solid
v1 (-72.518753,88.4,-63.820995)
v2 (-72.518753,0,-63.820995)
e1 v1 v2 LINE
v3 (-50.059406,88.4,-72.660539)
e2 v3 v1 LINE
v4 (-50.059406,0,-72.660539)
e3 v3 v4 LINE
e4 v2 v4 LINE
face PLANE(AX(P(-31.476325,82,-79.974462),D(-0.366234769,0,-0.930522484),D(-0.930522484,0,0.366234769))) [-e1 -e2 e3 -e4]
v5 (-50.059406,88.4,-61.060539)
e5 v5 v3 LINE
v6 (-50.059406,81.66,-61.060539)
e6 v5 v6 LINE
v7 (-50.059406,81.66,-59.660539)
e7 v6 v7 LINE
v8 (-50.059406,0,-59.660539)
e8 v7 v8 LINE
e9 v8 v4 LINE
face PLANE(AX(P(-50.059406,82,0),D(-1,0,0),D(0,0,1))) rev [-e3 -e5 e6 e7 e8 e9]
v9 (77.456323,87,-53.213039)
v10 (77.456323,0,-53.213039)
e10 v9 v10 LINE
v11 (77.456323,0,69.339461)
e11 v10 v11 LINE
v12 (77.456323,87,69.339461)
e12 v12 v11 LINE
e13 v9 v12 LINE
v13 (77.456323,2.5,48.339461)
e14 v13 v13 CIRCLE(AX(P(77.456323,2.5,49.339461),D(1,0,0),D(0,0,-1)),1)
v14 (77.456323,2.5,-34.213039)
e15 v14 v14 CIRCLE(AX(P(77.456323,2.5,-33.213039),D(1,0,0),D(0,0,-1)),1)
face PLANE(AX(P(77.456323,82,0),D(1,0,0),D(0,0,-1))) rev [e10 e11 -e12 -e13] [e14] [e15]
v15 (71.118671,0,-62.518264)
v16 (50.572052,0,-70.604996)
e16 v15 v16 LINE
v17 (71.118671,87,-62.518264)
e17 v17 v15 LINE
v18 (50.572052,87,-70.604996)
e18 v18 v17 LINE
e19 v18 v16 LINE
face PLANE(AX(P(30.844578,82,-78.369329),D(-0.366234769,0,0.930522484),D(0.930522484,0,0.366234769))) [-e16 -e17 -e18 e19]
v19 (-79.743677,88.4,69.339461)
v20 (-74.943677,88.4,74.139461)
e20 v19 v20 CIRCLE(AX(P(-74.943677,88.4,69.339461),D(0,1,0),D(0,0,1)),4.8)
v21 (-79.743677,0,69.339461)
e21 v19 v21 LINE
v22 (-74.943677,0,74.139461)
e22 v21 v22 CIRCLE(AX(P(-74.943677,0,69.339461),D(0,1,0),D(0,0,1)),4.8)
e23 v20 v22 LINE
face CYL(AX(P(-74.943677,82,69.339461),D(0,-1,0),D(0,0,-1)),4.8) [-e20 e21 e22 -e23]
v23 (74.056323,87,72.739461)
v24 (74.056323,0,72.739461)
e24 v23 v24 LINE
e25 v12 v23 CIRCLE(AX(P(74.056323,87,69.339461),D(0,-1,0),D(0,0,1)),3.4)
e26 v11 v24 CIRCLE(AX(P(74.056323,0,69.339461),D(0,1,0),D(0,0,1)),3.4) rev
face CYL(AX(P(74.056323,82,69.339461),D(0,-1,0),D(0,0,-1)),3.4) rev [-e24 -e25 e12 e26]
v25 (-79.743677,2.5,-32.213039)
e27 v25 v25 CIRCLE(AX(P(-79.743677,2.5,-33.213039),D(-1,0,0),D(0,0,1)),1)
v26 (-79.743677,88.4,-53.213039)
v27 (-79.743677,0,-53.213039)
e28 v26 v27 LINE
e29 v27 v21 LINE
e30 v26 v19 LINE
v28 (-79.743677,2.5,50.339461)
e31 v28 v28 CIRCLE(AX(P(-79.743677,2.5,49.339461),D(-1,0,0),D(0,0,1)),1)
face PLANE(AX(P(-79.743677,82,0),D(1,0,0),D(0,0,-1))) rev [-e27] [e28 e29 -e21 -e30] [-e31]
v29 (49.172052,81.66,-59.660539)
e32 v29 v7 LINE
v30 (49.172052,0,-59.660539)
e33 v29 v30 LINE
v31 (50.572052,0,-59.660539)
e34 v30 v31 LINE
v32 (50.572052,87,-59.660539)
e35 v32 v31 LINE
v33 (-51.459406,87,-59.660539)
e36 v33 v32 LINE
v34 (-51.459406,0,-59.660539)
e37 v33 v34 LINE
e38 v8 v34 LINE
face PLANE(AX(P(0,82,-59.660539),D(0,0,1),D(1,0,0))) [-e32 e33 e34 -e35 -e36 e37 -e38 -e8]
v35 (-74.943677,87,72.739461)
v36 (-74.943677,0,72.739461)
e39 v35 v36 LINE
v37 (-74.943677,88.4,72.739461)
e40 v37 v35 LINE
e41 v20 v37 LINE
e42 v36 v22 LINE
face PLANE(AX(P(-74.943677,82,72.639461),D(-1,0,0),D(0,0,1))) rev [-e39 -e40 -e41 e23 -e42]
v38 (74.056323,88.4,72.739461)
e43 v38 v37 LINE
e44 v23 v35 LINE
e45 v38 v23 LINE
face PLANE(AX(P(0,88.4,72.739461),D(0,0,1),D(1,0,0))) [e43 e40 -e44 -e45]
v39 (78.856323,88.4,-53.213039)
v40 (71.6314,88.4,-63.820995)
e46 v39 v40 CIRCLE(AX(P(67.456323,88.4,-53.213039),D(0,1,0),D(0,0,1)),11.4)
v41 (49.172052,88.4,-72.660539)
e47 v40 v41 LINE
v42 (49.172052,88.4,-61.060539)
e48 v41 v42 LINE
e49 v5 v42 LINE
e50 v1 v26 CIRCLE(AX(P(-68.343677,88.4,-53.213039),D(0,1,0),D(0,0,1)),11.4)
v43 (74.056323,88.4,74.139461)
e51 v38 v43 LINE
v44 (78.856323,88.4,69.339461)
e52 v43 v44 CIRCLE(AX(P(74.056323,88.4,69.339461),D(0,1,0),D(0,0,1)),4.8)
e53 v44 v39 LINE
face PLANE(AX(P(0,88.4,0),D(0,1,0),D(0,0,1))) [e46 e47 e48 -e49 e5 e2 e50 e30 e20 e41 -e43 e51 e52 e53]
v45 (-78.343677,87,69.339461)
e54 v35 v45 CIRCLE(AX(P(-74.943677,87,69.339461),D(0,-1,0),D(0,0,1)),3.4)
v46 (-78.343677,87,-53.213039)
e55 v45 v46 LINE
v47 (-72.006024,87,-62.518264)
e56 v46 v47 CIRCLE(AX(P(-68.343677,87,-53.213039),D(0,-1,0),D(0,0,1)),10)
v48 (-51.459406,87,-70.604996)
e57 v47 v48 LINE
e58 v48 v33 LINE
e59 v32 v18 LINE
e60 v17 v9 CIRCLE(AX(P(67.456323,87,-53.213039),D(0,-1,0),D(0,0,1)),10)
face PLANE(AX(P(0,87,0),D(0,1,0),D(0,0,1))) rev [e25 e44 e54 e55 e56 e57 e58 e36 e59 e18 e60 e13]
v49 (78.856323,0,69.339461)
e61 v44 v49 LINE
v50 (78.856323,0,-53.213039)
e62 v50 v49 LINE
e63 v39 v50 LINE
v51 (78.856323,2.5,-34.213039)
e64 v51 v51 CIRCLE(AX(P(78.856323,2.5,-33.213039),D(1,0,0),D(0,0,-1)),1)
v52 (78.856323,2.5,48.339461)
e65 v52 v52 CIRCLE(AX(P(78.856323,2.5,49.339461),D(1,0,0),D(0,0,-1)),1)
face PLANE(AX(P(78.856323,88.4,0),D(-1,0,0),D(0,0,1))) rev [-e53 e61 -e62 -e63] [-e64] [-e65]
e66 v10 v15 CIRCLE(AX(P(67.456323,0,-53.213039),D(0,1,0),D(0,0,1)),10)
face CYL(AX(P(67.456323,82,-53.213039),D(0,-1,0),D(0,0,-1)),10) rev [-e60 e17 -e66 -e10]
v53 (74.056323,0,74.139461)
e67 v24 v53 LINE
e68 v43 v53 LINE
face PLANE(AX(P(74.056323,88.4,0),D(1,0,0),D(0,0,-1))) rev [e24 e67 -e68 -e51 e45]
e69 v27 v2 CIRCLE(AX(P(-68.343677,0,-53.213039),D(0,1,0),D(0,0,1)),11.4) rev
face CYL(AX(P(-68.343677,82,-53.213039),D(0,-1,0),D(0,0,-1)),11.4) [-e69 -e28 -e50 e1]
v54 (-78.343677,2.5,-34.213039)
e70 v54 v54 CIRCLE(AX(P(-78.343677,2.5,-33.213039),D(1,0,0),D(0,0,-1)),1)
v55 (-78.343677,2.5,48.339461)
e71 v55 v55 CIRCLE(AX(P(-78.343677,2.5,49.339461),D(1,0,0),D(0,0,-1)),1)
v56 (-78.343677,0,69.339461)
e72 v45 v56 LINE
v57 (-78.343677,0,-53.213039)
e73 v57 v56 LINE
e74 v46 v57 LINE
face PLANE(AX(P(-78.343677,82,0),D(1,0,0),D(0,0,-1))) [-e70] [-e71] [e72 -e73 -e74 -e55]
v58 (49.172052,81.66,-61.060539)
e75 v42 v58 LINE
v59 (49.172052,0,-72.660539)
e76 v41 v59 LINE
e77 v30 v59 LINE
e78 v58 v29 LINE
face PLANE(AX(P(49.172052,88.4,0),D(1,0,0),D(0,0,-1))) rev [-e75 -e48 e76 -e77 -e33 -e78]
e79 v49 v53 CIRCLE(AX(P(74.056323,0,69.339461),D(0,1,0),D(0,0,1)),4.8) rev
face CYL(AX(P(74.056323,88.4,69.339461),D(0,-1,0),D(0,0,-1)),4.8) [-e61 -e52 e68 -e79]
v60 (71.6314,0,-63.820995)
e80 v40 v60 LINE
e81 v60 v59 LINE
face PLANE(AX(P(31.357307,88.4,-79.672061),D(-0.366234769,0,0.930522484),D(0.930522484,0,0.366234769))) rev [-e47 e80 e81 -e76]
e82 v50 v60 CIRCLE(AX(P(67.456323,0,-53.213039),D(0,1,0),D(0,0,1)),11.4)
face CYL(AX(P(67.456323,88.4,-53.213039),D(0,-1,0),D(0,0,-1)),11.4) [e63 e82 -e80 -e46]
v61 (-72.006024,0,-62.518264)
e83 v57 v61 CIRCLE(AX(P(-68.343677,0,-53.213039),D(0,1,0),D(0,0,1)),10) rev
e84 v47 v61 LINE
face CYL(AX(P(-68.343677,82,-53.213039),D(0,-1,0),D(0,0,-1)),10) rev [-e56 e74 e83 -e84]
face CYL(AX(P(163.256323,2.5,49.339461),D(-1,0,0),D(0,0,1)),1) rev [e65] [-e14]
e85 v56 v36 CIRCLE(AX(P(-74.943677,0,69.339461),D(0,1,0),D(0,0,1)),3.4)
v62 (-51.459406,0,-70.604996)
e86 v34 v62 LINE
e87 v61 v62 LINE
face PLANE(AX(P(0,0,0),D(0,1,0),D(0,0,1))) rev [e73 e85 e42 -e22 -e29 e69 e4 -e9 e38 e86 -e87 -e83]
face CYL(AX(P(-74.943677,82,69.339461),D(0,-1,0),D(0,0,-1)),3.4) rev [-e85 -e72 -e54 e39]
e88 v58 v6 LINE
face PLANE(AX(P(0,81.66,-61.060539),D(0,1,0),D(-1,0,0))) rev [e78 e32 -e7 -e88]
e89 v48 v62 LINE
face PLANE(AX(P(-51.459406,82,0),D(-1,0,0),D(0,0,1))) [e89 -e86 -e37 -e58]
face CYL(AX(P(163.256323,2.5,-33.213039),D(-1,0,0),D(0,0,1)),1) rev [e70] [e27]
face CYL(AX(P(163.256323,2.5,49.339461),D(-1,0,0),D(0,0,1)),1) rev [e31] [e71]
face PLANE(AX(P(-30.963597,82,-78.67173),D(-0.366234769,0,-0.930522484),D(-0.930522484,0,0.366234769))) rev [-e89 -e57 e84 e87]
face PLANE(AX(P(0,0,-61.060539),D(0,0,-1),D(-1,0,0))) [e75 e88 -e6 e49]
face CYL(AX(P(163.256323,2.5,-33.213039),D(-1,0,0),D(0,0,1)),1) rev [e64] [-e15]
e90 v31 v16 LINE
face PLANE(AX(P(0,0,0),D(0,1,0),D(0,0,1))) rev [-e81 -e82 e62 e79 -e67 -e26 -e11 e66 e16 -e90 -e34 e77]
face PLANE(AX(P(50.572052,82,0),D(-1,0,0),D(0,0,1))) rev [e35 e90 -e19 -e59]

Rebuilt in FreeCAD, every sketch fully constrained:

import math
import FreeCAD as App
import Part
import Sketcher
from FreeCAD import Vector


def add_polygon(sketch, points):
    """Adds a closed chain of lines whose ends are joined by coincident constraints."""
    first, n = sketch.GeometryCount, len(points)
    for a, b in zip(points, points[1:] + points[:1]):
        sketch.addGeometry(Part.LineSegment(App.Vector(*a, 0), App.Vector(*b, 0)), False)
    for i in range(n):
        sketch.addConstraint(Sketcher.Constraint("Coincident", first + i, 2, first + (i + 1) % n, 1))

doc = App.newDocument("Part")
params = doc.addObject("Spreadsheet::Sheet", "Params")
for row, (alias, value) in enumerate([
    ("sketch1_radius", "10 mm"),
    ("sketch1_radius2", "4.8 mm"),
    ("sketch1_radius3", "11.4 mm"),
    ("sketch1_width", "149 mm"),
    ("sketch1_height", "13 mm"),
    ("pad1_length", "82 mm"),
    ("sketch2_radius", "10 mm"),
    ("sketch2_radius2", "3.4 mm"),
    ("sketch2_width", "149 mm"),
    ("pad2_length", "1.5 mm"),
    ("sketch3_width", "149 mm"),
    ("sketch3_height", "82 mm"),
    ("pocket1_length", "1.5 mm"),
    ("sketch4_height", "0.2 mm"),
    ("pocket2_length", "18 mm"),
    ("sketch5_diameter", "2 mm"),
    ("pocket3_length", "243 mm"),
    ("sketch6_radius", "10 mm"),
    ("sketch6_radius2", "3.4 mm"),
    ("sketch6_width", "149 mm"),
    ("sketch6_width2", "1.4 mm"),
    ("sketch6_height", "0.2 mm"),
    ("pocket4_length", "16.4 mm"),
    ("sketch7_radius", "10 mm"),
    ("sketch7_radius2", "4.8 mm"),
    ("sketch7_radius3", "11.4 mm"),
    ("sketch7_height", "13 mm"),
    ("pad3_length", "5 mm"),
    ("sketch8_radius", "4.8 mm"),
    ("sketch8_radius2", "11.4 mm"),
    ("sketch8_width", "149 mm"),
    ("sketch8_height", "13 mm"),
    ("sketch8_height2", "1.4 mm"),
    ("pad4_length", "1.4 mm"),
    ("sketch9_height", "6.74 mm"),
    ("pad5_length", "1.4 mm"),
], start=1):
    params.set(f"A{row}", alias)
    params.set(f"B{row}", "=" + value)
    params.setAlias(f"B{row}", alias)

body = doc.addObject("PartDesign::Body", "Body")
body.AllowCompound = True

# Sketch on XZ plane
sketch1 = body.newObject("Sketcher::SketchObject", "Sketch")
sketch1.AttachmentSupport = (doc.getObject("XZ_Plane"), [""])
sketch1.MapMode = "FlatFace"
sketch1.addGeometry([
    Part.ArcOfCircle(Part.Circle(Vector(74.056323, 69.339461, 0), Vector(0, 0, 1), 4.8), math.radians(0), math.radians(90)),  # 0
    Part.LineSegment(Vector(78.856323, 69.339461, 0), Vector(78.856323, -53.213039, 0)),  # 1
    Part.ArcOfCircle(Part.Circle(Vector(67.456323, -53.213039, 0), Vector(0, 0, 1), 11.4), math.radians(-68.516408), math.radians(0)),  # 2
    Part.LineSegment(Vector(71.6314, -63.820995, 0), Vector(49.172052, -72.660539, 0)),  # 3
    Part.LineSegment(Vector(49.172052, -72.660539, 0), Vector(49.172052, -59.660539, 0)),  # 4
    Part.LineSegment(Vector(49.172052, -59.660539, 0), Vector(50.572052, -59.660539, 0)),  # 5
    Part.LineSegment(Vector(50.572052, -59.660539, 0), Vector(50.572052, -70.604996, 0)),  # 6
    Part.LineSegment(Vector(50.572052, -70.604996, 0), Vector(71.118671, -62.518264, 0)),  # 7
    Part.ArcOfCircle(Part.Circle(Vector(67.456323, -53.213039, 0), Vector(0, 0, 1), 10), math.radians(-68.516408), math.radians(0)),  # 8
    Part.LineSegment(Vector(77.456323, -53.213039, 0), Vector(77.456323, 69.339461, 0)),  # 9
    Part.ArcOfCircle(Part.Circle(Vector(74.056323, 69.339461, 0), Vector(0, 0, 1), 3.4), math.radians(0), math.radians(90)),  # 10
    Part.LineSegment(Vector(74.056323, 72.739461, 0), Vector(-74.943677, 72.739461, 0)),  # 11
    Part.ArcOfCircle(Part.Circle(Vector(-74.943677, 69.339461, 0), Vector(0, 0, 1), 3.4), math.radians(90), math.radians(180)),  # 12
    Part.LineSegment(Vector(-78.343677, 69.339461, 0), Vector(-78.343677, -53.213039, 0)),  # 13
    Part.ArcOfCircle(Part.Circle(Vector(-68.343677, -53.213039, 0), Vector(0, 0, 1), 10), math.radians(-180), math.radians(-111.483592)),  # 14
    Part.LineSegment(Vector(-72.006024, -62.518264, 0), Vector(-51.459406, -70.604996, 0)),  # 15
    Part.LineSegment(Vector(-51.459406, -70.604996, 0), Vector(-51.459406, -59.660539, 0)),  # 16
    Part.LineSegment(Vector(-51.459406, -59.660539, 0), Vector(-50.059406, -59.660539, 0)),  # 17
    Part.LineSegment(Vector(-50.059406, -59.660539, 0), Vector(-50.059406, -72.660539, 0)),  # 18
    Part.LineSegment(Vector(-50.059406, -72.660539, 0), Vector(-72.518753, -63.820995, 0)),  # 19
    Part.ArcOfCircle(Part.Circle(Vector(-68.343677, -53.213039, 0), Vector(0, 0, 1), 11.4), math.radians(-180), math.radians(-111.483592)),  # 20
    Part.LineSegment(Vector(-79.743677, -53.213039, 0), Vector(-79.743677, 69.339461, 0)),  # 21
    Part.ArcOfCircle(Part.Circle(Vector(-74.943677, 69.339461, 0), Vector(0, 0, 1), 4.8), math.radians(90), math.radians(180)),  # 22
    Part.LineSegment(Vector(-74.943677, 74.139461, 0), Vector(74.056323, 74.139461, 0)),  # 23
], False)
sketch1.addConstraint([
    Sketcher.Constraint("Tangent", 0, 1, 1, 1),
    Sketcher.Constraint("Tangent", 1, 2, 2, 2),
    Sketcher.Constraint("Tangent", 2, 1, 3, 1),
    Sketcher.Constraint("Coincident", 3, 2, 4, 1),
    Sketcher.Constraint("Coincident", 4, 2, 5, 1),
    Sketcher.Constraint("Coincident", 5, 2, 6, 1),
    Sketcher.Constraint("Coincident", 6, 2, 7, 1),
    Sketcher.Constraint("Tangent", 7, 2, 8, 1),
    Sketcher.Constraint("Tangent", 8, 2, 9, 1),
    Sketcher.Constraint("Tangent", 9, 2, 10, 1),
    Sketcher.Constraint("Tangent", 10, 2, 11, 1),
    Sketcher.Constraint("Tangent", 11, 2, 12, 1),
    Sketcher.Constraint("Tangent", 12, 2, 13, 1),
    Sketcher.Constraint("Tangent", 13, 2, 14, 1),
    Sketcher.Constraint("Tangent", 14, 2, 15, 1),
    Sketcher.Constraint("Coincident", 15, 2, 16, 1),
    Sketcher.Constraint("Coincident", 16, 2, 17, 1),
    Sketcher.Constraint("Coincident", 17, 2, 18, 1),
    Sketcher.Constraint("Coincident", 18, 2, 19, 1),
    Sketcher.Constraint("Tangent", 19, 2, 20, 2),
    Sketcher.Constraint("Tangent", 20, 1, 21, 1),
    Sketcher.Constraint("Tangent", 21, 2, 22, 2),
    Sketcher.Constraint("Tangent", 22, 1, 23, 1),
    Sketcher.Constraint("Tangent", 23, 2, 0, 2),
    Sketcher.Constraint("Vertical", 1),
    Sketcher.Constraint("Vertical", 4),
    Sketcher.Constraint("Horizontal", 5),
    Sketcher.Constraint("Vertical", 6),
    Sketcher.Constraint("Vertical", 9),
    Sketcher.Constraint("Horizontal", 11),
    Sketcher.Constraint("Vertical", 13),
    Sketcher.Constraint("Vertical", 16),
    Sketcher.Constraint("Horizontal", 17),
    Sketcher.Constraint("Vertical", 18),
    Sketcher.Constraint("Vertical", 21),
    Sketcher.Constraint("Horizontal", 23),
    Sketcher.Constraint("Coincident", 8, 3, 2, 3),
    Sketcher.Constraint("Coincident", 10, 3, 0, 3),
    Sketcher.Constraint("Coincident", 20, 3, 14, 3),
    Sketcher.Constraint("Coincident", 22, 3, 12, 3),
    Sketcher.Constraint("Equal", 10, 12),
    Sketcher.Constraint("Equal", 8, 14),
    Sketcher.Constraint("Parallel", 3, 7),
    Sketcher.Constraint("Parallel", 15, 19),
    Sketcher.Constraint("Horizontal", 8, 3, 14, 3),
    Sketcher.Constraint("Horizontal", 7, 2, 14, 2),
    Sketcher.Constraint("Horizontal", 6, 2, 15, 2),
    Sketcher.Constraint("Horizontal", 5, 2, 16, 2),
    Sketcher.Constraint("Horizontal", 3, 2, 18, 2),
    Sketcher.Constraint("Radius", 8, 10.0),
    Sketcher.Constraint("Radius", 0, 4.8),
    Sketcher.Constraint("Radius", 2, 11.4),
    Sketcher.Constraint("DistanceX", 11, 2, 11, 1, 149.0),
    Sketcher.Constraint("DistanceY", 4, 1, 4, 2, 13.0),
    Sketcher.Constraint("DistanceX", 5, 1, 5, 2, 1.4),
    Sketcher.Constraint("DistanceY", 1, 2, 1, 1, 122.5525),
    Sketcher.Constraint("DistanceY", 6, 2, 2, 1, 6.784001),
    Sketcher.Constraint("DistanceX", -1, 1, 2, 1, 71.6314),
    Sketcher.Constraint("DistanceY", 3, 2, 8, 3, 19.4475),
    Sketcher.Constraint("DistanceY", -1, 1, 0, 3, 69.339461),
])
sketch1.setExpression("Constraints[49]", "Params.sketch1_radius")
sketch1.setExpression("Constraints[50]", "Params.sketch1_radius2")
sketch1.setExpression("Constraints[51]", "Params.sketch1_radius3")
sketch1.setExpression("Constraints[52]", "Params.sketch1_width")
sketch1.setExpression("Constraints[53]", "Params.sketch1_height")
pad1 = body.newObject("PartDesign::Pad", "Pad")
pad1.Profile = sketch1
pad1.setExpression("Length", "Params.pad1_length")
pad1.Reversed = True

# Sketch on XZ plane
sketch2 = body.newObject("Sketcher::SketchObject", "Sketch001")
sketch2.AttachmentSupport = (doc.getObject("XZ_Plane"), [""])
sketch2.MapMode = "FlatFace"
sketch2.AttachmentOffset = App.Placement(Vector(0, 0, -82), App.Rotation())
sketch2.addGeometry([
    Part.LineSegment(Vector(50.572052, -70.604996, 0), Vector(50.572052, -59.660539, 0)),  # 0
    Part.LineSegment(Vector(50.572052, -59.660539, 0), Vector(-51.459406, -59.660539, 0)),  # 1
    Part.LineSegment(Vector(-51.459406, -59.660539, 0), Vector(-51.459406, -70.604996, 0)),  # 2
    Part.LineSegment(Vector(-51.459406, -70.604996, 0), Vector(-72.006024, -62.518264, 0)),  # 3
    Part.ArcOfCircle(Part.Circle(Vector(-68.343677, -53.213039, 0), Vector(0, 0, 1), 10), math.radians(-180), math.radians(-111.483592)),  # 4
    Part.LineSegment(Vector(-78.343677, -53.213039, 0), Vector(-78.343677, 69.339461, 0)),  # 5
    Part.ArcOfCircle(Part.Circle(Vector(-74.943677, 69.339461, 0), Vector(0, 0, 1), 3.4), math.radians(90), math.radians(180)),  # 6
    Part.LineSegment(Vector(-74.943677, 72.739461, 0), Vector(74.056323, 72.739461, 0)),  # 7
    Part.ArcOfCircle(Part.Circle(Vector(74.056323, 69.339461, 0), Vector(0, 0, 1), 3.4), math.radians(0), math.radians(90)),  # 8
    Part.LineSegment(Vector(77.456323, 69.339461, 0), Vector(77.456323, -53.213039, 0)),  # 9
    Part.ArcOfCircle(Part.Circle(Vector(67.456323, -53.213039, 0), Vector(0, 0, 1), 10), math.radians(-68.516408), math.radians(0)),  # 10
    Part.LineSegment(Vector(71.118671, -62.518264, 0), Vector(50.572052, -70.604996, 0)),  # 11
], False)
sketch2.addConstraint([
    Sketcher.Constraint("Coincident", 0, 2, 1, 1),
    Sketcher.Constraint("Coincident", 1, 2, 2, 1),
    Sketcher.Constraint("Coincident", 2, 2, 3, 1),
    Sketcher.Constraint("Tangent", 3, 2, 4, 2),
    Sketcher.Constraint("Tangent", 4, 1, 5, 1),
    Sketcher.Constraint("Tangent", 5, 2, 6, 2),
    Sketcher.Constraint("Tangent", 6, 1, 7, 1),
    Sketcher.Constraint("Tangent", 7, 2, 8, 2),
    Sketcher.Constraint("Tangent", 8, 1, 9, 1),
    Sketcher.Constraint("Tangent", 9, 2, 10, 2),
    Sketcher.Constraint("Tangent", 10, 1, 11, 1),
    Sketcher.Constraint("Coincident", 11, 2, 0, 1),
    Sketcher.Constraint("Vertical", 0),
    Sketcher.Constraint("Horizontal", 1),
    Sketcher.Constraint("Vertical", 2),
    Sketcher.Constraint("Vertical", 5),
    Sketcher.Constraint("Horizontal", 7),
    Sketcher.Constraint("Vertical", 9),
    Sketcher.Constraint("Equal", 6, 8),
    Sketcher.Constraint("Equal", 4, 10),
    Sketcher.Constraint("Horizontal", 4, 3, 10, 3),
    Sketcher.Constraint("Horizontal", 3, 2, 10, 1),
    Sketcher.Constraint("Horizontal", 2, 2, 11, 2),
    Sketcher.Constraint("Radius", 4, 10.0),
    Sketcher.Constraint("Radius", 6, 3.4),
    Sketcher.Constraint("DistanceX", 7, 1, 7, 2, 149.0),
    Sketcher.Constraint("DistanceY", 0, 2, 8, 3, 129.0),
    Sketcher.Constraint("DistanceY", 5, 1, 5, 2, 122.5525),
    Sketcher.Constraint("DistanceX", 1, 2, 1, 1, 102.031458),
    Sketcher.Constraint("DistanceY", 0, 1, 0, 2, 10.944457),
    Sketcher.Constraint("DistanceY", 4, 3, -1, 1, 53.213039),
    Sketcher.Constraint("DistanceX", -1, 1, 0, 2, 50.572052),
])
sketch2.setExpression("Constraints[23]", "Params.sketch2_radius")
sketch2.setExpression("Constraints[24]", "Params.sketch2_radius2")
sketch2.setExpression("Constraints[25]", "Params.sketch2_width")
pad2 = body.newObject("PartDesign::Pad", "Pad001")
pad2.Profile = sketch2
pad2.setExpression("Length", "Params.pad2_length")

# Sketch on XY plane
sketch3 = body.newObject("Sketcher::SketchObject", "Sketch002")
sketch3.AttachmentSupport = (doc.getObject("XY_Plane"), [""])
sketch3.MapMode = "FlatFace"
sketch3.AttachmentOffset = App.Placement(Vector(0, 0, 74.139461), App.Rotation())
add_polygon(sketch3, [(-74.943677, 82), (-74.943677, 0), (74.056323, 0), (74.056323, 82)])  # lines 0-3
sketch3.addConstraint([
    Sketcher.Constraint("Vertical", 0),
    Sketcher.Constraint("Horizontal", 1),
    Sketcher.Constraint("Vertical", 2),
    Sketcher.Constraint("Horizontal", 3),
    Sketcher.Constraint("PointOnObject", 0, 2, -1),
    Sketcher.Constraint("DistanceX", 1, 1, 1, 2, 149.0),
    Sketcher.Constraint("DistanceY", 0, 2, 0, 1, 82.0),
    Sketcher.Constraint("DistanceX", 0, 2, -1, 1, 74.943677),
])
sketch3.setExpression("Constraints[9]", "Params.sketch3_width")
sketch3.setExpression("Constraints[10]", "Params.sketch3_height")
pocket1 = body.newObject("PartDesign::Pocket", "Pocket")
pocket1.Profile = sketch3
pocket1.setExpression("Length", "Params.pocket1_length")

# Sketch on XZ plane
sketch4 = body.newObject("Sketcher::SketchObject", "Sketch003")
sketch4.AttachmentSupport = (doc.getObject("XZ_Plane"), [""])
sketch4.MapMode = "FlatFace"
sketch4.AttachmentOffset = App.Placement(Vector(0, 0, -82), App.Rotation())
add_polygon(sketch4, [(-50.059406, -59.660539), (-50.059406, -59.460539), (49.172052, -59.460539), (49.172052, -59.660539)])  # lines 0-3
sketch4.addConstraint([
    Sketcher.Constraint("Vertical", 0),
    Sketcher.Constraint("Horizontal", 1),
    Sketcher.Constraint("Vertical", 2),
    Sketcher.Constraint("Horizontal", 3),
    Sketcher.Constraint("DistanceY", 0, 1, 0, 2, 0.2),
    Sketcher.Constraint("DistanceX", 1, 1, 1, 2, 99.231458),
    Sketcher.Constraint("DistanceY", 0, 2, -1, 1, 59.460539),
    Sketcher.Constraint("DistanceX", -1, 1, 1, 2, 49.172052),
])
sketch4.setExpression("Constraints[8]", "Params.sketch4_height")
pocket2 = body.newObject("PartDesign::Pocket", "Pocket001")
pocket2.Profile = sketch4
pocket2.setExpression("Length", "Params.pocket2_length")
pocket2.Reversed = True

# Sketch on YZ plane
sketch5 = body.newObject("Sketcher::SketchObject", "Sketch004")
sketch5.AttachmentSupport = (doc.getObject("YZ_Plane"), [""])
sketch5.MapMode = "FlatFace"
sketch5.AttachmentOffset = App.Placement(Vector(0, 0, -79.743677), App.Rotation())
sketch5.addGeometry([
    Part.Circle(Vector(2.5, -33.213039, 0), Vector(0, 0, 1), 1),
    Part.Circle(Vector(2.5, 49.339461, 0), Vector(0, 0, 1), 1),
], False)
sketch5.addConstraint([
    Sketcher.Constraint("Equal", 0, 1),
    Sketcher.Constraint("Vertical", 0, 3, 1, 3),
    Sketcher.Constraint("Diameter", 0, 2.0),
    Sketcher.Constraint("DistanceX", -1, 1, 0, 3, 2.5),
    Sketcher.Constraint("DistanceY", 0, 3, 1, 3, 82.5525),
    Sketcher.Constraint("DistanceY", 0, 3, -1, 1, 33.213039),
])
sketch5.setExpression("Constraints[2]", "Params.sketch5_diameter")
pocket3 = body.newObject("PartDesign::Pocket", "Pocket002")
pocket3.Profile = sketch5
pocket3.setExpression("Length", "Params.pocket3_length")
pocket3.Reversed = True

# Sketch on XZ plane
sketch6 = body.newObject("Sketcher::SketchObject", "Sketch005")
sketch6.AttachmentSupport = (doc.getObject("XZ_Plane"), [""])
sketch6.MapMode = "FlatFace"
sketch6.AttachmentOffset = App.Placement(Vector(0, 0, -80.5), App.Rotation())
sketch6.addGeometry([
    Part.LineSegment(Vector(-50.059406, -59.460539, 0), Vector(49.172052, -59.460539, 0)),  # 0
    Part.LineSegment(Vector(49.172052, -59.460539, 0), Vector(49.172052, -59.660539, 0)),  # 1
    Part.LineSegment(Vector(49.172052, -59.660539, 0), Vector(50.572052, -59.660539, 0)),  # 2
    Part.LineSegment(Vector(50.572052, -59.660539, 0), Vector(50.572052, -70.604996, 0)),  # 3
    Part.LineSegment(Vector(50.572052, -70.604996, 0), Vector(71.118671, -62.518264, 0)),  # 4
    Part.ArcOfCircle(Part.Circle(Vector(67.456323, -53.213039, 0), Vector(0, 0, 1), 10), math.radians(-68.516408), math.radians(0)),  # 5
    Part.LineSegment(Vector(77.456323, -53.213039, 0), Vector(77.456323, 69.339461, 0)),  # 6
    Part.ArcOfCircle(Part.Circle(Vector(74.056323, 69.339461, 0), Vector(0, 0, 1), 3.4), math.radians(0), math.radians(90)),  # 7
    Part.LineSegment(Vector(74.056323, 72.739461, 0), Vector(74.056323, 72.639461, 0)),  # 8
    Part.LineSegment(Vector(74.056323, 72.639461, 0), Vector(-74.943677, 72.639461, 0)),  # 9
    Part.LineSegment(Vector(-74.943677, 72.639461, 0), Vector(-74.943677, 72.739461, 0)),  # 10
    Part.ArcOfCircle(Part.Circle(Vector(-74.943677, 69.339461, 0), Vector(0, 0, 1), 3.4), math.radians(90), math.radians(180)),  # 11
    Part.LineSegment(Vector(-78.343677, 69.339461, 0), Vector(-78.343677, -53.213039, 0)),  # 12
    Part.ArcOfCircle(Part.Circle(Vector(-68.343677, -53.213039, 0), Vector(0, 0, 1), 10), math.radians(-180), math.radians(-111.483592)),  # 13
    Part.LineSegment(Vector(-72.006024, -62.518264, 0), Vector(-51.459406, -70.604996, 0)),  # 14
    Part.LineSegment(Vector(-51.459406, -70.604996, 0), Vector(-51.459406, -59.660539, 0)),  # 15
    Part.LineSegment(Vector(-51.459406, -59.660539, 0), Vector(-50.059406, -59.660539, 0)),  # 16
    Part.LineSegment(Vector(-50.059406, -59.660539, 0), Vector(-50.059406, -59.460539, 0)),  # 17
], False)
sketch6.addConstraint([
    Sketcher.Constraint("Coincident", 0, 2, 1, 1),
    Sketcher.Constraint("Coincident", 1, 2, 2, 1),
    Sketcher.Constraint("Coincident", 2, 2, 3, 1),
    Sketcher.Constraint("Coincident", 3, 2, 4, 1),
    Sketcher.Constraint("Tangent", 4, 2, 5, 1),
    Sketcher.Constraint("Tangent", 5, 2, 6, 1),
    Sketcher.Constraint("Tangent", 6, 2, 7, 1),
    Sketcher.Constraint("Coincident", 7, 2, 8, 1),
    Sketcher.Constraint("Coincident", 8, 2, 9, 1),
    Sketcher.Constraint("Coincident", 9, 2, 10, 1),
    Sketcher.Constraint("Coincident", 10, 2, 11, 1),
    Sketcher.Constraint("Tangent", 11, 2, 12, 1),
    Sketcher.Constraint("Tangent", 12, 2, 13, 1),
    Sketcher.Constraint("Tangent", 13, 2, 14, 1),
    Sketcher.Constraint("Coincident", 14, 2, 15, 1),
    Sketcher.Constraint("Coincident", 15, 2, 16, 1),
    Sketcher.Constraint("Coincident", 16, 2, 17, 1),
    Sketcher.Constraint("Coincident", 17, 2, 0, 1),
    Sketcher.Constraint("Horizontal", 0),
    Sketcher.Constraint("Vertical", 1),
    Sketcher.Constraint("Horizontal", 2),
    Sketcher.Constraint("Vertical", 3),
    Sketcher.Constraint("Vertical", 6),
    Sketcher.Constraint("Vertical", 8),
    Sketcher.Constraint("Horizontal", 9),
    Sketcher.Constraint("Vertical", 10),
    Sketcher.Constraint("Vertical", 12),
    Sketcher.Constraint("Vertical", 15),
    Sketcher.Constraint("Horizontal", 16),
    Sketcher.Constraint("Vertical", 17),
    Sketcher.Constraint("Equal", 7, 11),
    Sketcher.Constraint("Equal", 5, 13),
    Sketcher.Constraint("Horizontal", 7, 3, 11, 3),
    Sketcher.Constraint("Horizontal", 5, 3, 13, 3),
    Sketcher.Constraint("Horizontal", 4, 2, 13, 2),
    Sketcher.Constraint("Horizontal", 3, 2, 14, 2),
    Sketcher.Constraint("Horizontal", 2, 2, 15, 2),
    Sketcher.Constraint("Vertical", 11, 3, 9, 2),
    Sketcher.Constraint("Equal", 2, 16),
    Sketcher.Constraint("Radius", 5, 10.0),
    Sketcher.Constraint("Radius", 7, 3.4),
    Sketcher.Constraint("DistanceX", 9, 2, 9, 1, 149.0),
    Sketcher.Constraint("DistanceX", 2, 1, 2, 2, 1.4),
    Sketcher.Constraint("DistanceY", 1, 2, 1, 1, 0.2),
    Sketcher.Constraint("DistanceY", 8, 2, 8, 1, 0.1),
    Sketcher.Constraint("DistanceX", 11, 3, 7, 3, 149.0),
    Sketcher.Constraint("DistanceY", 1, 2, 7, 3, 129.0),
    Sketcher.Constraint("DistanceY", 6, 1, 6, 2, 122.5525),
    Sketcher.Constraint("DistanceX", 0, 1, 0, 2, 99.231458),
    Sketcher.Constraint("DistanceY", 3, 2, 3, 1, 10.944457),
    Sketcher.Constraint("DistanceY", 5, 3, -1, 1, 53.213039),
    Sketcher.Constraint("DistanceX", -1, 1, 0, 2, 49.172052),
])
sketch6.setExpression("Constraints[39]", "Params.sketch6_radius")
sketch6.setExpression("Constraints[40]", "Params.sketch6_radius2")
sketch6.setExpression("Constraints[41]", "Params.sketch6_width")
sketch6.setExpression("Constraints[42]", "Params.sketch6_width2")
sketch6.setExpression("Constraints[43]", "Params.sketch6_height")
pocket4 = body.newObject("PartDesign::Pocket", "Pocket003")
pocket4.Profile = sketch6
pocket4.setExpression("Length", "Params.pocket4_length")

# Sketch on XZ plane
sketch7 = body.newObject("Sketcher::SketchObject", "Sketch006")
sketch7.AttachmentSupport = (doc.getObject("XZ_Plane"), [""])
sketch7.MapMode = "FlatFace"
sketch7.AttachmentOffset = App.Placement(Vector(0, 0, -82), App.Rotation())
sketch7.addGeometry([
    Part.LineSegment(Vector(74.056323, 72.739461, 0), Vector(74.056323, 74.139461, 0)),  # 0
    Part.ArcOfCircle(Part.Circle(Vector(74.056323, 69.339461, 0), Vector(0, 0, 1), 4.8), math.radians(0), math.radians(90)),  # 1
    Part.LineSegment(Vector(78.856323, 69.339461, 0), Vector(78.856323, -53.213039, 0)),  # 2
    Part.ArcOfCircle(Part.Circle(Vector(67.456323, -53.213039, 0), Vector(0, 0, 1), 11.4), math.radians(-68.516408), math.radians(0)),  # 3
    Part.LineSegment(Vector(71.6314, -63.820995, 0), Vector(49.172052, -72.660539, 0)),  # 4
    Part.LineSegment(Vector(49.172052, -72.660539, 0), Vector(49.172052, -59.660539, 0)),  # 5
    Part.LineSegment(Vector(49.172052, -59.660539, 0), Vector(50.572052, -59.660539, 0)),  # 6
    Part.LineSegment(Vector(50.572052, -59.660539, 0), Vector(50.572052, -70.604996, 0)),  # 7
    Part.LineSegment(Vector(50.572052, -70.604996, 0), Vector(71.118671, -62.518264, 0)),  # 8
    Part.ArcOfCircle(Part.Circle(Vector(67.456323, -53.213039, 0), Vector(0, 0, 1), 10), math.radians(-68.516408), math.radians(0)),  # 9
    Part.LineSegment(Vector(77.456323, -53.213039, 0), Vector(77.456323, 69.339461, 0)),  # 10
    Part.ArcOfCircle(Part.Circle(Vector(74.056323, 69.339461, 0), Vector(0, 0, 1), 3.4), math.radians(0), math.radians(90)),  # 11
    Part.LineSegment(Vector(-51.459406, -59.660539, 0), Vector(-50.059406, -59.660539, 0)),  # 12
    Part.LineSegment(Vector(-50.059406, -59.660539, 0), Vector(-50.059406, -72.660539, 0)),  # 13
    Part.LineSegment(Vector(-50.059406, -72.660539, 0), Vector(-72.518753, -63.820995, 0)),  # 14
    Part.ArcOfCircle(Part.Circle(Vector(-68.343677, -53.213039, 0), Vector(0, 0, 1), 11.4), math.radians(-180), math.radians(-111.483592)),  # 15
    Part.LineSegment(Vector(-79.743677, -53.213039, 0), Vector(-79.743677, 69.339461, 0)),  # 16
    Part.ArcOfCircle(Part.Circle(Vector(-74.943677, 69.339461, 0), Vector(0, 0, 1), 4.8), math.radians(90), math.radians(180)),  # 17
    Part.LineSegment(Vector(-74.943677, 74.139461, 0), Vector(-74.943677, 72.739461, 0)),  # 18
    Part.ArcOfCircle(Part.Circle(Vector(-74.943677, 69.339461, 0), Vector(0, 0, 1), 3.4), math.radians(90), math.radians(180)),  # 19
    Part.LineSegment(Vector(-78.343677, 69.339461, 0), Vector(-78.343677, -53.213039, 0)),  # 20
    Part.ArcOfCircle(Part.Circle(Vector(-68.343677, -53.213039, 0), Vector(0, 0, 1), 10), math.radians(-180), math.radians(-111.483592)),  # 21
    Part.LineSegment(Vector(-72.006024, -62.518264, 0), Vector(-51.459406, -70.604996, 0)),  # 22
    Part.LineSegment(Vector(-51.459406, -70.604996, 0), Vector(-51.459406, -59.660539, 0)),  # 23
], False)
sketch7.addConstraint([
    Sketcher.Constraint("Coincident", 0, 2, 1, 2),
    Sketcher.Constraint("Tangent", 1, 1, 2, 1),
    Sketcher.Constraint("Tangent", 2, 2, 3, 2),
    Sketcher.Constraint("Tangent", 3, 1, 4, 1),
    Sketcher.Constraint("Coincident", 4, 2, 5, 1),
    Sketcher.Constraint("Coincident", 5, 2, 6, 1),
    Sketcher.Constraint("Coincident", 6, 2, 7, 1),
    Sketcher.Constraint("Coincident", 7, 2, 8, 1),
    Sketcher.Constraint("Tangent", 8, 2, 9, 1),
    Sketcher.Constraint("Tangent", 9, 2, 10, 1),
    Sketcher.Constraint("Tangent", 10, 2, 11, 1),
    Sketcher.Constraint("Coincident", 11, 2, 0, 1),
    Sketcher.Constraint("Coincident", 12, 2, 13, 1),
    Sketcher.Constraint("Coincident", 13, 2, 14, 1),
    Sketcher.Constraint("Tangent", 14, 2, 15, 2),
    Sketcher.Constraint("Tangent", 15, 1, 16, 1),
    Sketcher.Constraint("Tangent", 16, 2, 17, 2),
    Sketcher.Constraint("Coincident", 17, 1, 18, 1),
    Sketcher.Constraint("Coincident", 18, 2, 19, 1),
    Sketcher.Constraint("Tangent", 19, 2, 20, 1),
    Sketcher.Constraint("Tangent", 20, 2, 21, 1),
    Sketcher.Constraint("Tangent", 21, 2, 22, 1),
    Sketcher.Constraint("Coincident", 22, 2, 23, 1),
    Sketcher.Constraint("Coincident", 23, 2, 12, 1),
    Sketcher.Constraint("Vertical", 0),
    Sketcher.Constraint("Vertical", 2),
    Sketcher.Constraint("Vertical", 5),
    Sketcher.Constraint("Horizontal", 6),
    Sketcher.Constraint("Vertical", 7),
    Sketcher.Constraint("Vertical", 10),
    Sketcher.Constraint("Horizontal", 12),
    Sketcher.Constraint("Vertical", 13),
    Sketcher.Constraint("Vertical", 16),
    Sketcher.Constraint("Vertical", 18),
    Sketcher.Constraint("Vertical", 20),
    Sketcher.Constraint("Vertical", 23),
    Sketcher.Constraint("Coincident", 9, 3, 3, 3),
    Sketcher.Constraint("Coincident", 11, 3, 1, 3),
    Sketcher.Constraint("Coincident", 19, 3, 17, 3),
    Sketcher.Constraint("Coincident", 21, 3, 15, 3),
    Sketcher.Constraint("Equal", 3, 15),
    Sketcher.Constraint("Equal", 1, 17),
    Sketcher.Constraint("Equal", 11, 19),
    Sketcher.Constraint("Parallel", 4, 8),
    Sketcher.Constraint("Parallel", 14, 22),
    Sketcher.Constraint("Horizontal", 9, 3, 15, 3),
    Sketcher.Constraint("Horizontal", 11, 3, 17, 3),
    Sketcher.Constraint("Horizontal", 6, 2, 12, 2),
    Sketcher.Constraint("Horizontal", 4, 2, 13, 2),
    Sketcher.Constraint("Horizontal", 3, 1, 14, 2),
    Sketcher.Constraint("Horizontal", 7, 2, 22, 2),
    Sketcher.Constraint("Vertical", 11, 3, 0, 2),
    Sketcher.Constraint("Vertical", 19, 3, 17, 1),
    Sketcher.Constraint("Equal", 12, 0),
    Sketcher.Constraint("Radius", 9, 10.0),
    Sketcher.Constraint("Radius", 1, 4.8),
    Sketcher.Constraint("Radius", 3, 11.4),
    Sketcher.Constraint("DistanceY", 5, 1, 5, 2, 13.0),
    Sketcher.Constraint("DistanceX", 17, 3, 1, 3, 149.0),
    Sketcher.Constraint("DistanceY", 2, 2, 2, 1, 122.5525),
    Sketcher.Constraint("DistanceY", 7, 2, 3, 1, 6.784001),
    Sketcher.Constraint("DistanceX", -1, 1, 3, 1, 71.6314),
    Sketcher.Constraint("DistanceY", 4, 2, 9, 3, 19.4475),
    Sketcher.Constraint("DistanceY", -1, 1, 1, 3, 69.339461),
])
sketch7.setExpression("Constraints[54]", "Params.sketch7_radius")
sketch7.setExpression("Constraints[55]", "Params.sketch7_radius2")
sketch7.setExpression("Constraints[56]", "Params.sketch7_radius3")
sketch7.setExpression("Constraints[57]", "Params.sketch7_height")
pad3 = body.newObject("PartDesign::Pad", "Pad002")
pad3.Profile = sketch7
pad3.setExpression("Length", "Params.pad3_length")
pad3.Reversed = True

# Sketch on XZ plane
sketch8 = body.newObject("Sketcher::SketchObject", "Sketch007")
sketch8.AttachmentSupport = (doc.getObject("XZ_Plane"), [""])
sketch8.MapMode = "FlatFace"
sketch8.AttachmentOffset = App.Placement(Vector(0, 0, -87), App.Rotation())
sketch8.addGeometry([
    Part.LineSegment(Vector(-74.943677, 72.739461, 0), Vector(74.056323, 72.739461, 0)),  # 0
    Part.LineSegment(Vector(74.056323, 72.739461, 0), Vector(74.056323, 74.139461, 0)),  # 1
    Part.ArcOfCircle(Part.Circle(Vector(74.056323, 69.339461, 0), Vector(0, 0, 1), 4.8), math.radians(0), math.radians(90)),  # 2
    Part.LineSegment(Vector(78.856323, 69.339461, 0), Vector(78.856323, -53.213039, 0)),  # 3
    Part.ArcOfCircle(Part.Circle(Vector(67.456323, -53.213039, 0), Vector(0, 0, 1), 11.4), math.radians(-68.516408), math.radians(0)),  # 4
    Part.LineSegment(Vector(71.6314, -63.820995, 0), Vector(49.172052, -72.660539, 0)),  # 5
    Part.LineSegment(Vector(49.172052, -72.660539, 0), Vector(49.172052, -59.660539, 0)),  # 6
    Part.LineSegment(Vector(49.172052, -59.660539, 0), Vector(-50.059406, -59.660539, 0)),  # 7
    Part.LineSegment(Vector(-50.059406, -59.660539, 0), Vector(-50.059406, -72.660539, 0)),  # 8
    Part.LineSegment(Vector(-50.059406, -72.660539, 0), Vector(-72.518753, -63.820995, 0)),  # 9
    Part.ArcOfCircle(Part.Circle(Vector(-68.343677, -53.213039, 0), Vector(0, 0, 1), 11.4), math.radians(-180), math.radians(-111.483592)),  # 10
    Part.LineSegment(Vector(-79.743677, -53.213039, 0), Vector(-79.743677, 69.339461, 0)),  # 11
    Part.ArcOfCircle(Part.Circle(Vector(-74.943677, 69.339461, 0), Vector(0, 0, 1), 4.8), math.radians(90), math.radians(180)),  # 12
    Part.LineSegment(Vector(-74.943677, 74.139461, 0), Vector(-74.943677, 72.739461, 0)),  # 13
], False)
sketch8.addConstraint([
    Sketcher.Constraint("Coincident", 0, 2, 1, 1),
    Sketcher.Constraint("Coincident", 1, 2, 2, 2),
    Sketcher.Constraint("Tangent", 2, 1, 3, 1),
    Sketcher.Constraint("Tangent", 3, 2, 4, 2),
    Sketcher.Constraint("Tangent", 4, 1, 5, 1),
    Sketcher.Constraint("Coincident", 5, 2, 6, 1),
    Sketcher.Constraint("Coincident", 6, 2, 7, 1),
    Sketcher.Constraint("Coincident", 7, 2, 8, 1),
    Sketcher.Constraint("Coincident", 8, 2, 9, 1),
    Sketcher.Constraint("Tangent", 9, 2, 10, 2),
    Sketcher.Constraint("Tangent", 10, 1, 11, 1),
    Sketcher.Constraint("Tangent", 11, 2, 12, 2),
    Sketcher.Constraint("Coincident", 12, 1, 13, 1),
    Sketcher.Constraint("Coincident", 13, 2, 0, 1),
    Sketcher.Constraint("Horizontal", 0),
    Sketcher.Constraint("Vertical", 1),
    Sketcher.Constraint("Vertical", 3),
    Sketcher.Constraint("Vertical", 6),
    Sketcher.Constraint("Horizontal", 7),
    Sketcher.Constraint("Vertical", 8),
    Sketcher.Constraint("Vertical", 11),
    Sketcher.Constraint("Vertical", 13),
    Sketcher.Constraint("Equal", 4, 10),
    Sketcher.Constraint("Equal", 2, 12),
    Sketcher.Constraint("Horizontal", 4, 3, 10, 3),
    Sketcher.Constraint("Horizontal", 2, 3, 12, 3),
    Sketcher.Constraint("Horizontal", 5, 2, 8, 2),
    Sketcher.Constraint("Horizontal", 4, 1, 9, 2),
    Sketcher.Constraint("Vertical", 2, 3, 0, 2),
    Sketcher.Constraint("Radius", 2, 4.8),
    Sketcher.Constraint("Radius", 4, 11.4),
    Sketcher.Constraint("DistanceX", 0, 1, 0, 2, 149.0),
    Sketcher.Constraint("DistanceY", 6, 1, 6, 2, 13.0),
    Sketcher.Constraint("DistanceY", 1, 1, 1, 2, 1.4),
    Sketcher.Constraint("DistanceX", 12, 3, 2, 3, 149.0),
    Sketcher.Constraint("DistanceY", 5, 2, 2, 3, 142.0),
    Sketcher.Constraint("DistanceY", 3, 2, 3, 1, 122.5525),
    Sketcher.Constraint("DistanceX", -1, 1, 4, 1, 71.6314),
    Sketcher.Constraint("DistanceX", 7, 2, 7, 1, 99.231458),
    Sketcher.Constraint("DistanceY", -1, 1, 2, 3, 69.339461),
])
sketch8.setExpression("Constraints[29]", "Params.sketch8_radius")
sketch8.setExpression("Constraints[30]", "Params.sketch8_radius2")
sketch8.setExpression("Constraints[31]", "Params.sketch8_width")
sketch8.setExpression("Constraints[32]", "Params.sketch8_height")
sketch8.setExpression("Constraints[33]", "Params.sketch8_height2")
pad4 = body.newObject("PartDesign::Pad", "Pad003")
pad4.Profile = sketch8
pad4.setExpression("Length", "Params.pad4_length")
pad4.Reversed = True

# Sketch on XY plane
sketch9 = body.newObject("Sketcher::SketchObject", "Sketch008")
sketch9.AttachmentSupport = (doc.getObject("XY_Plane"), [""])
sketch9.MapMode = "FlatFace"
sketch9.AttachmentOffset = App.Placement(Vector(0, 0, -59.660539), App.Rotation())
add_polygon(sketch9, [(49.172052, 81.66), (-50.059406, 81.66), (-50.059406, 88.4), (49.172052, 88.4)])  # lines 0-3
sketch9.addConstraint([
    Sketcher.Constraint("Horizontal", 0),
    Sketcher.Constraint("Vertical", 1),
    Sketcher.Constraint("Horizontal", 2),
    Sketcher.Constraint("Vertical", 3),
    Sketcher.Constraint("DistanceY", 1, 1, 1, 2, 6.74),
    Sketcher.Constraint("DistanceY", -1, 1, 1, 2, 88.4),
    Sketcher.Constraint("DistanceX", 0, 2, 0, 1, 99.231458),
    Sketcher.Constraint("DistanceX", -1, 1, 2, 2, 49.172052),
])
sketch9.setExpression("Constraints[8]", "Params.sketch9_height")
pad5 = body.newObject("PartDesign::Pad", "Pad004")
pad5.Profile = sketch9
pad5.setExpression("Length", "Params.pad5_length")
pad5.Reversed = True

doc.recompute()
